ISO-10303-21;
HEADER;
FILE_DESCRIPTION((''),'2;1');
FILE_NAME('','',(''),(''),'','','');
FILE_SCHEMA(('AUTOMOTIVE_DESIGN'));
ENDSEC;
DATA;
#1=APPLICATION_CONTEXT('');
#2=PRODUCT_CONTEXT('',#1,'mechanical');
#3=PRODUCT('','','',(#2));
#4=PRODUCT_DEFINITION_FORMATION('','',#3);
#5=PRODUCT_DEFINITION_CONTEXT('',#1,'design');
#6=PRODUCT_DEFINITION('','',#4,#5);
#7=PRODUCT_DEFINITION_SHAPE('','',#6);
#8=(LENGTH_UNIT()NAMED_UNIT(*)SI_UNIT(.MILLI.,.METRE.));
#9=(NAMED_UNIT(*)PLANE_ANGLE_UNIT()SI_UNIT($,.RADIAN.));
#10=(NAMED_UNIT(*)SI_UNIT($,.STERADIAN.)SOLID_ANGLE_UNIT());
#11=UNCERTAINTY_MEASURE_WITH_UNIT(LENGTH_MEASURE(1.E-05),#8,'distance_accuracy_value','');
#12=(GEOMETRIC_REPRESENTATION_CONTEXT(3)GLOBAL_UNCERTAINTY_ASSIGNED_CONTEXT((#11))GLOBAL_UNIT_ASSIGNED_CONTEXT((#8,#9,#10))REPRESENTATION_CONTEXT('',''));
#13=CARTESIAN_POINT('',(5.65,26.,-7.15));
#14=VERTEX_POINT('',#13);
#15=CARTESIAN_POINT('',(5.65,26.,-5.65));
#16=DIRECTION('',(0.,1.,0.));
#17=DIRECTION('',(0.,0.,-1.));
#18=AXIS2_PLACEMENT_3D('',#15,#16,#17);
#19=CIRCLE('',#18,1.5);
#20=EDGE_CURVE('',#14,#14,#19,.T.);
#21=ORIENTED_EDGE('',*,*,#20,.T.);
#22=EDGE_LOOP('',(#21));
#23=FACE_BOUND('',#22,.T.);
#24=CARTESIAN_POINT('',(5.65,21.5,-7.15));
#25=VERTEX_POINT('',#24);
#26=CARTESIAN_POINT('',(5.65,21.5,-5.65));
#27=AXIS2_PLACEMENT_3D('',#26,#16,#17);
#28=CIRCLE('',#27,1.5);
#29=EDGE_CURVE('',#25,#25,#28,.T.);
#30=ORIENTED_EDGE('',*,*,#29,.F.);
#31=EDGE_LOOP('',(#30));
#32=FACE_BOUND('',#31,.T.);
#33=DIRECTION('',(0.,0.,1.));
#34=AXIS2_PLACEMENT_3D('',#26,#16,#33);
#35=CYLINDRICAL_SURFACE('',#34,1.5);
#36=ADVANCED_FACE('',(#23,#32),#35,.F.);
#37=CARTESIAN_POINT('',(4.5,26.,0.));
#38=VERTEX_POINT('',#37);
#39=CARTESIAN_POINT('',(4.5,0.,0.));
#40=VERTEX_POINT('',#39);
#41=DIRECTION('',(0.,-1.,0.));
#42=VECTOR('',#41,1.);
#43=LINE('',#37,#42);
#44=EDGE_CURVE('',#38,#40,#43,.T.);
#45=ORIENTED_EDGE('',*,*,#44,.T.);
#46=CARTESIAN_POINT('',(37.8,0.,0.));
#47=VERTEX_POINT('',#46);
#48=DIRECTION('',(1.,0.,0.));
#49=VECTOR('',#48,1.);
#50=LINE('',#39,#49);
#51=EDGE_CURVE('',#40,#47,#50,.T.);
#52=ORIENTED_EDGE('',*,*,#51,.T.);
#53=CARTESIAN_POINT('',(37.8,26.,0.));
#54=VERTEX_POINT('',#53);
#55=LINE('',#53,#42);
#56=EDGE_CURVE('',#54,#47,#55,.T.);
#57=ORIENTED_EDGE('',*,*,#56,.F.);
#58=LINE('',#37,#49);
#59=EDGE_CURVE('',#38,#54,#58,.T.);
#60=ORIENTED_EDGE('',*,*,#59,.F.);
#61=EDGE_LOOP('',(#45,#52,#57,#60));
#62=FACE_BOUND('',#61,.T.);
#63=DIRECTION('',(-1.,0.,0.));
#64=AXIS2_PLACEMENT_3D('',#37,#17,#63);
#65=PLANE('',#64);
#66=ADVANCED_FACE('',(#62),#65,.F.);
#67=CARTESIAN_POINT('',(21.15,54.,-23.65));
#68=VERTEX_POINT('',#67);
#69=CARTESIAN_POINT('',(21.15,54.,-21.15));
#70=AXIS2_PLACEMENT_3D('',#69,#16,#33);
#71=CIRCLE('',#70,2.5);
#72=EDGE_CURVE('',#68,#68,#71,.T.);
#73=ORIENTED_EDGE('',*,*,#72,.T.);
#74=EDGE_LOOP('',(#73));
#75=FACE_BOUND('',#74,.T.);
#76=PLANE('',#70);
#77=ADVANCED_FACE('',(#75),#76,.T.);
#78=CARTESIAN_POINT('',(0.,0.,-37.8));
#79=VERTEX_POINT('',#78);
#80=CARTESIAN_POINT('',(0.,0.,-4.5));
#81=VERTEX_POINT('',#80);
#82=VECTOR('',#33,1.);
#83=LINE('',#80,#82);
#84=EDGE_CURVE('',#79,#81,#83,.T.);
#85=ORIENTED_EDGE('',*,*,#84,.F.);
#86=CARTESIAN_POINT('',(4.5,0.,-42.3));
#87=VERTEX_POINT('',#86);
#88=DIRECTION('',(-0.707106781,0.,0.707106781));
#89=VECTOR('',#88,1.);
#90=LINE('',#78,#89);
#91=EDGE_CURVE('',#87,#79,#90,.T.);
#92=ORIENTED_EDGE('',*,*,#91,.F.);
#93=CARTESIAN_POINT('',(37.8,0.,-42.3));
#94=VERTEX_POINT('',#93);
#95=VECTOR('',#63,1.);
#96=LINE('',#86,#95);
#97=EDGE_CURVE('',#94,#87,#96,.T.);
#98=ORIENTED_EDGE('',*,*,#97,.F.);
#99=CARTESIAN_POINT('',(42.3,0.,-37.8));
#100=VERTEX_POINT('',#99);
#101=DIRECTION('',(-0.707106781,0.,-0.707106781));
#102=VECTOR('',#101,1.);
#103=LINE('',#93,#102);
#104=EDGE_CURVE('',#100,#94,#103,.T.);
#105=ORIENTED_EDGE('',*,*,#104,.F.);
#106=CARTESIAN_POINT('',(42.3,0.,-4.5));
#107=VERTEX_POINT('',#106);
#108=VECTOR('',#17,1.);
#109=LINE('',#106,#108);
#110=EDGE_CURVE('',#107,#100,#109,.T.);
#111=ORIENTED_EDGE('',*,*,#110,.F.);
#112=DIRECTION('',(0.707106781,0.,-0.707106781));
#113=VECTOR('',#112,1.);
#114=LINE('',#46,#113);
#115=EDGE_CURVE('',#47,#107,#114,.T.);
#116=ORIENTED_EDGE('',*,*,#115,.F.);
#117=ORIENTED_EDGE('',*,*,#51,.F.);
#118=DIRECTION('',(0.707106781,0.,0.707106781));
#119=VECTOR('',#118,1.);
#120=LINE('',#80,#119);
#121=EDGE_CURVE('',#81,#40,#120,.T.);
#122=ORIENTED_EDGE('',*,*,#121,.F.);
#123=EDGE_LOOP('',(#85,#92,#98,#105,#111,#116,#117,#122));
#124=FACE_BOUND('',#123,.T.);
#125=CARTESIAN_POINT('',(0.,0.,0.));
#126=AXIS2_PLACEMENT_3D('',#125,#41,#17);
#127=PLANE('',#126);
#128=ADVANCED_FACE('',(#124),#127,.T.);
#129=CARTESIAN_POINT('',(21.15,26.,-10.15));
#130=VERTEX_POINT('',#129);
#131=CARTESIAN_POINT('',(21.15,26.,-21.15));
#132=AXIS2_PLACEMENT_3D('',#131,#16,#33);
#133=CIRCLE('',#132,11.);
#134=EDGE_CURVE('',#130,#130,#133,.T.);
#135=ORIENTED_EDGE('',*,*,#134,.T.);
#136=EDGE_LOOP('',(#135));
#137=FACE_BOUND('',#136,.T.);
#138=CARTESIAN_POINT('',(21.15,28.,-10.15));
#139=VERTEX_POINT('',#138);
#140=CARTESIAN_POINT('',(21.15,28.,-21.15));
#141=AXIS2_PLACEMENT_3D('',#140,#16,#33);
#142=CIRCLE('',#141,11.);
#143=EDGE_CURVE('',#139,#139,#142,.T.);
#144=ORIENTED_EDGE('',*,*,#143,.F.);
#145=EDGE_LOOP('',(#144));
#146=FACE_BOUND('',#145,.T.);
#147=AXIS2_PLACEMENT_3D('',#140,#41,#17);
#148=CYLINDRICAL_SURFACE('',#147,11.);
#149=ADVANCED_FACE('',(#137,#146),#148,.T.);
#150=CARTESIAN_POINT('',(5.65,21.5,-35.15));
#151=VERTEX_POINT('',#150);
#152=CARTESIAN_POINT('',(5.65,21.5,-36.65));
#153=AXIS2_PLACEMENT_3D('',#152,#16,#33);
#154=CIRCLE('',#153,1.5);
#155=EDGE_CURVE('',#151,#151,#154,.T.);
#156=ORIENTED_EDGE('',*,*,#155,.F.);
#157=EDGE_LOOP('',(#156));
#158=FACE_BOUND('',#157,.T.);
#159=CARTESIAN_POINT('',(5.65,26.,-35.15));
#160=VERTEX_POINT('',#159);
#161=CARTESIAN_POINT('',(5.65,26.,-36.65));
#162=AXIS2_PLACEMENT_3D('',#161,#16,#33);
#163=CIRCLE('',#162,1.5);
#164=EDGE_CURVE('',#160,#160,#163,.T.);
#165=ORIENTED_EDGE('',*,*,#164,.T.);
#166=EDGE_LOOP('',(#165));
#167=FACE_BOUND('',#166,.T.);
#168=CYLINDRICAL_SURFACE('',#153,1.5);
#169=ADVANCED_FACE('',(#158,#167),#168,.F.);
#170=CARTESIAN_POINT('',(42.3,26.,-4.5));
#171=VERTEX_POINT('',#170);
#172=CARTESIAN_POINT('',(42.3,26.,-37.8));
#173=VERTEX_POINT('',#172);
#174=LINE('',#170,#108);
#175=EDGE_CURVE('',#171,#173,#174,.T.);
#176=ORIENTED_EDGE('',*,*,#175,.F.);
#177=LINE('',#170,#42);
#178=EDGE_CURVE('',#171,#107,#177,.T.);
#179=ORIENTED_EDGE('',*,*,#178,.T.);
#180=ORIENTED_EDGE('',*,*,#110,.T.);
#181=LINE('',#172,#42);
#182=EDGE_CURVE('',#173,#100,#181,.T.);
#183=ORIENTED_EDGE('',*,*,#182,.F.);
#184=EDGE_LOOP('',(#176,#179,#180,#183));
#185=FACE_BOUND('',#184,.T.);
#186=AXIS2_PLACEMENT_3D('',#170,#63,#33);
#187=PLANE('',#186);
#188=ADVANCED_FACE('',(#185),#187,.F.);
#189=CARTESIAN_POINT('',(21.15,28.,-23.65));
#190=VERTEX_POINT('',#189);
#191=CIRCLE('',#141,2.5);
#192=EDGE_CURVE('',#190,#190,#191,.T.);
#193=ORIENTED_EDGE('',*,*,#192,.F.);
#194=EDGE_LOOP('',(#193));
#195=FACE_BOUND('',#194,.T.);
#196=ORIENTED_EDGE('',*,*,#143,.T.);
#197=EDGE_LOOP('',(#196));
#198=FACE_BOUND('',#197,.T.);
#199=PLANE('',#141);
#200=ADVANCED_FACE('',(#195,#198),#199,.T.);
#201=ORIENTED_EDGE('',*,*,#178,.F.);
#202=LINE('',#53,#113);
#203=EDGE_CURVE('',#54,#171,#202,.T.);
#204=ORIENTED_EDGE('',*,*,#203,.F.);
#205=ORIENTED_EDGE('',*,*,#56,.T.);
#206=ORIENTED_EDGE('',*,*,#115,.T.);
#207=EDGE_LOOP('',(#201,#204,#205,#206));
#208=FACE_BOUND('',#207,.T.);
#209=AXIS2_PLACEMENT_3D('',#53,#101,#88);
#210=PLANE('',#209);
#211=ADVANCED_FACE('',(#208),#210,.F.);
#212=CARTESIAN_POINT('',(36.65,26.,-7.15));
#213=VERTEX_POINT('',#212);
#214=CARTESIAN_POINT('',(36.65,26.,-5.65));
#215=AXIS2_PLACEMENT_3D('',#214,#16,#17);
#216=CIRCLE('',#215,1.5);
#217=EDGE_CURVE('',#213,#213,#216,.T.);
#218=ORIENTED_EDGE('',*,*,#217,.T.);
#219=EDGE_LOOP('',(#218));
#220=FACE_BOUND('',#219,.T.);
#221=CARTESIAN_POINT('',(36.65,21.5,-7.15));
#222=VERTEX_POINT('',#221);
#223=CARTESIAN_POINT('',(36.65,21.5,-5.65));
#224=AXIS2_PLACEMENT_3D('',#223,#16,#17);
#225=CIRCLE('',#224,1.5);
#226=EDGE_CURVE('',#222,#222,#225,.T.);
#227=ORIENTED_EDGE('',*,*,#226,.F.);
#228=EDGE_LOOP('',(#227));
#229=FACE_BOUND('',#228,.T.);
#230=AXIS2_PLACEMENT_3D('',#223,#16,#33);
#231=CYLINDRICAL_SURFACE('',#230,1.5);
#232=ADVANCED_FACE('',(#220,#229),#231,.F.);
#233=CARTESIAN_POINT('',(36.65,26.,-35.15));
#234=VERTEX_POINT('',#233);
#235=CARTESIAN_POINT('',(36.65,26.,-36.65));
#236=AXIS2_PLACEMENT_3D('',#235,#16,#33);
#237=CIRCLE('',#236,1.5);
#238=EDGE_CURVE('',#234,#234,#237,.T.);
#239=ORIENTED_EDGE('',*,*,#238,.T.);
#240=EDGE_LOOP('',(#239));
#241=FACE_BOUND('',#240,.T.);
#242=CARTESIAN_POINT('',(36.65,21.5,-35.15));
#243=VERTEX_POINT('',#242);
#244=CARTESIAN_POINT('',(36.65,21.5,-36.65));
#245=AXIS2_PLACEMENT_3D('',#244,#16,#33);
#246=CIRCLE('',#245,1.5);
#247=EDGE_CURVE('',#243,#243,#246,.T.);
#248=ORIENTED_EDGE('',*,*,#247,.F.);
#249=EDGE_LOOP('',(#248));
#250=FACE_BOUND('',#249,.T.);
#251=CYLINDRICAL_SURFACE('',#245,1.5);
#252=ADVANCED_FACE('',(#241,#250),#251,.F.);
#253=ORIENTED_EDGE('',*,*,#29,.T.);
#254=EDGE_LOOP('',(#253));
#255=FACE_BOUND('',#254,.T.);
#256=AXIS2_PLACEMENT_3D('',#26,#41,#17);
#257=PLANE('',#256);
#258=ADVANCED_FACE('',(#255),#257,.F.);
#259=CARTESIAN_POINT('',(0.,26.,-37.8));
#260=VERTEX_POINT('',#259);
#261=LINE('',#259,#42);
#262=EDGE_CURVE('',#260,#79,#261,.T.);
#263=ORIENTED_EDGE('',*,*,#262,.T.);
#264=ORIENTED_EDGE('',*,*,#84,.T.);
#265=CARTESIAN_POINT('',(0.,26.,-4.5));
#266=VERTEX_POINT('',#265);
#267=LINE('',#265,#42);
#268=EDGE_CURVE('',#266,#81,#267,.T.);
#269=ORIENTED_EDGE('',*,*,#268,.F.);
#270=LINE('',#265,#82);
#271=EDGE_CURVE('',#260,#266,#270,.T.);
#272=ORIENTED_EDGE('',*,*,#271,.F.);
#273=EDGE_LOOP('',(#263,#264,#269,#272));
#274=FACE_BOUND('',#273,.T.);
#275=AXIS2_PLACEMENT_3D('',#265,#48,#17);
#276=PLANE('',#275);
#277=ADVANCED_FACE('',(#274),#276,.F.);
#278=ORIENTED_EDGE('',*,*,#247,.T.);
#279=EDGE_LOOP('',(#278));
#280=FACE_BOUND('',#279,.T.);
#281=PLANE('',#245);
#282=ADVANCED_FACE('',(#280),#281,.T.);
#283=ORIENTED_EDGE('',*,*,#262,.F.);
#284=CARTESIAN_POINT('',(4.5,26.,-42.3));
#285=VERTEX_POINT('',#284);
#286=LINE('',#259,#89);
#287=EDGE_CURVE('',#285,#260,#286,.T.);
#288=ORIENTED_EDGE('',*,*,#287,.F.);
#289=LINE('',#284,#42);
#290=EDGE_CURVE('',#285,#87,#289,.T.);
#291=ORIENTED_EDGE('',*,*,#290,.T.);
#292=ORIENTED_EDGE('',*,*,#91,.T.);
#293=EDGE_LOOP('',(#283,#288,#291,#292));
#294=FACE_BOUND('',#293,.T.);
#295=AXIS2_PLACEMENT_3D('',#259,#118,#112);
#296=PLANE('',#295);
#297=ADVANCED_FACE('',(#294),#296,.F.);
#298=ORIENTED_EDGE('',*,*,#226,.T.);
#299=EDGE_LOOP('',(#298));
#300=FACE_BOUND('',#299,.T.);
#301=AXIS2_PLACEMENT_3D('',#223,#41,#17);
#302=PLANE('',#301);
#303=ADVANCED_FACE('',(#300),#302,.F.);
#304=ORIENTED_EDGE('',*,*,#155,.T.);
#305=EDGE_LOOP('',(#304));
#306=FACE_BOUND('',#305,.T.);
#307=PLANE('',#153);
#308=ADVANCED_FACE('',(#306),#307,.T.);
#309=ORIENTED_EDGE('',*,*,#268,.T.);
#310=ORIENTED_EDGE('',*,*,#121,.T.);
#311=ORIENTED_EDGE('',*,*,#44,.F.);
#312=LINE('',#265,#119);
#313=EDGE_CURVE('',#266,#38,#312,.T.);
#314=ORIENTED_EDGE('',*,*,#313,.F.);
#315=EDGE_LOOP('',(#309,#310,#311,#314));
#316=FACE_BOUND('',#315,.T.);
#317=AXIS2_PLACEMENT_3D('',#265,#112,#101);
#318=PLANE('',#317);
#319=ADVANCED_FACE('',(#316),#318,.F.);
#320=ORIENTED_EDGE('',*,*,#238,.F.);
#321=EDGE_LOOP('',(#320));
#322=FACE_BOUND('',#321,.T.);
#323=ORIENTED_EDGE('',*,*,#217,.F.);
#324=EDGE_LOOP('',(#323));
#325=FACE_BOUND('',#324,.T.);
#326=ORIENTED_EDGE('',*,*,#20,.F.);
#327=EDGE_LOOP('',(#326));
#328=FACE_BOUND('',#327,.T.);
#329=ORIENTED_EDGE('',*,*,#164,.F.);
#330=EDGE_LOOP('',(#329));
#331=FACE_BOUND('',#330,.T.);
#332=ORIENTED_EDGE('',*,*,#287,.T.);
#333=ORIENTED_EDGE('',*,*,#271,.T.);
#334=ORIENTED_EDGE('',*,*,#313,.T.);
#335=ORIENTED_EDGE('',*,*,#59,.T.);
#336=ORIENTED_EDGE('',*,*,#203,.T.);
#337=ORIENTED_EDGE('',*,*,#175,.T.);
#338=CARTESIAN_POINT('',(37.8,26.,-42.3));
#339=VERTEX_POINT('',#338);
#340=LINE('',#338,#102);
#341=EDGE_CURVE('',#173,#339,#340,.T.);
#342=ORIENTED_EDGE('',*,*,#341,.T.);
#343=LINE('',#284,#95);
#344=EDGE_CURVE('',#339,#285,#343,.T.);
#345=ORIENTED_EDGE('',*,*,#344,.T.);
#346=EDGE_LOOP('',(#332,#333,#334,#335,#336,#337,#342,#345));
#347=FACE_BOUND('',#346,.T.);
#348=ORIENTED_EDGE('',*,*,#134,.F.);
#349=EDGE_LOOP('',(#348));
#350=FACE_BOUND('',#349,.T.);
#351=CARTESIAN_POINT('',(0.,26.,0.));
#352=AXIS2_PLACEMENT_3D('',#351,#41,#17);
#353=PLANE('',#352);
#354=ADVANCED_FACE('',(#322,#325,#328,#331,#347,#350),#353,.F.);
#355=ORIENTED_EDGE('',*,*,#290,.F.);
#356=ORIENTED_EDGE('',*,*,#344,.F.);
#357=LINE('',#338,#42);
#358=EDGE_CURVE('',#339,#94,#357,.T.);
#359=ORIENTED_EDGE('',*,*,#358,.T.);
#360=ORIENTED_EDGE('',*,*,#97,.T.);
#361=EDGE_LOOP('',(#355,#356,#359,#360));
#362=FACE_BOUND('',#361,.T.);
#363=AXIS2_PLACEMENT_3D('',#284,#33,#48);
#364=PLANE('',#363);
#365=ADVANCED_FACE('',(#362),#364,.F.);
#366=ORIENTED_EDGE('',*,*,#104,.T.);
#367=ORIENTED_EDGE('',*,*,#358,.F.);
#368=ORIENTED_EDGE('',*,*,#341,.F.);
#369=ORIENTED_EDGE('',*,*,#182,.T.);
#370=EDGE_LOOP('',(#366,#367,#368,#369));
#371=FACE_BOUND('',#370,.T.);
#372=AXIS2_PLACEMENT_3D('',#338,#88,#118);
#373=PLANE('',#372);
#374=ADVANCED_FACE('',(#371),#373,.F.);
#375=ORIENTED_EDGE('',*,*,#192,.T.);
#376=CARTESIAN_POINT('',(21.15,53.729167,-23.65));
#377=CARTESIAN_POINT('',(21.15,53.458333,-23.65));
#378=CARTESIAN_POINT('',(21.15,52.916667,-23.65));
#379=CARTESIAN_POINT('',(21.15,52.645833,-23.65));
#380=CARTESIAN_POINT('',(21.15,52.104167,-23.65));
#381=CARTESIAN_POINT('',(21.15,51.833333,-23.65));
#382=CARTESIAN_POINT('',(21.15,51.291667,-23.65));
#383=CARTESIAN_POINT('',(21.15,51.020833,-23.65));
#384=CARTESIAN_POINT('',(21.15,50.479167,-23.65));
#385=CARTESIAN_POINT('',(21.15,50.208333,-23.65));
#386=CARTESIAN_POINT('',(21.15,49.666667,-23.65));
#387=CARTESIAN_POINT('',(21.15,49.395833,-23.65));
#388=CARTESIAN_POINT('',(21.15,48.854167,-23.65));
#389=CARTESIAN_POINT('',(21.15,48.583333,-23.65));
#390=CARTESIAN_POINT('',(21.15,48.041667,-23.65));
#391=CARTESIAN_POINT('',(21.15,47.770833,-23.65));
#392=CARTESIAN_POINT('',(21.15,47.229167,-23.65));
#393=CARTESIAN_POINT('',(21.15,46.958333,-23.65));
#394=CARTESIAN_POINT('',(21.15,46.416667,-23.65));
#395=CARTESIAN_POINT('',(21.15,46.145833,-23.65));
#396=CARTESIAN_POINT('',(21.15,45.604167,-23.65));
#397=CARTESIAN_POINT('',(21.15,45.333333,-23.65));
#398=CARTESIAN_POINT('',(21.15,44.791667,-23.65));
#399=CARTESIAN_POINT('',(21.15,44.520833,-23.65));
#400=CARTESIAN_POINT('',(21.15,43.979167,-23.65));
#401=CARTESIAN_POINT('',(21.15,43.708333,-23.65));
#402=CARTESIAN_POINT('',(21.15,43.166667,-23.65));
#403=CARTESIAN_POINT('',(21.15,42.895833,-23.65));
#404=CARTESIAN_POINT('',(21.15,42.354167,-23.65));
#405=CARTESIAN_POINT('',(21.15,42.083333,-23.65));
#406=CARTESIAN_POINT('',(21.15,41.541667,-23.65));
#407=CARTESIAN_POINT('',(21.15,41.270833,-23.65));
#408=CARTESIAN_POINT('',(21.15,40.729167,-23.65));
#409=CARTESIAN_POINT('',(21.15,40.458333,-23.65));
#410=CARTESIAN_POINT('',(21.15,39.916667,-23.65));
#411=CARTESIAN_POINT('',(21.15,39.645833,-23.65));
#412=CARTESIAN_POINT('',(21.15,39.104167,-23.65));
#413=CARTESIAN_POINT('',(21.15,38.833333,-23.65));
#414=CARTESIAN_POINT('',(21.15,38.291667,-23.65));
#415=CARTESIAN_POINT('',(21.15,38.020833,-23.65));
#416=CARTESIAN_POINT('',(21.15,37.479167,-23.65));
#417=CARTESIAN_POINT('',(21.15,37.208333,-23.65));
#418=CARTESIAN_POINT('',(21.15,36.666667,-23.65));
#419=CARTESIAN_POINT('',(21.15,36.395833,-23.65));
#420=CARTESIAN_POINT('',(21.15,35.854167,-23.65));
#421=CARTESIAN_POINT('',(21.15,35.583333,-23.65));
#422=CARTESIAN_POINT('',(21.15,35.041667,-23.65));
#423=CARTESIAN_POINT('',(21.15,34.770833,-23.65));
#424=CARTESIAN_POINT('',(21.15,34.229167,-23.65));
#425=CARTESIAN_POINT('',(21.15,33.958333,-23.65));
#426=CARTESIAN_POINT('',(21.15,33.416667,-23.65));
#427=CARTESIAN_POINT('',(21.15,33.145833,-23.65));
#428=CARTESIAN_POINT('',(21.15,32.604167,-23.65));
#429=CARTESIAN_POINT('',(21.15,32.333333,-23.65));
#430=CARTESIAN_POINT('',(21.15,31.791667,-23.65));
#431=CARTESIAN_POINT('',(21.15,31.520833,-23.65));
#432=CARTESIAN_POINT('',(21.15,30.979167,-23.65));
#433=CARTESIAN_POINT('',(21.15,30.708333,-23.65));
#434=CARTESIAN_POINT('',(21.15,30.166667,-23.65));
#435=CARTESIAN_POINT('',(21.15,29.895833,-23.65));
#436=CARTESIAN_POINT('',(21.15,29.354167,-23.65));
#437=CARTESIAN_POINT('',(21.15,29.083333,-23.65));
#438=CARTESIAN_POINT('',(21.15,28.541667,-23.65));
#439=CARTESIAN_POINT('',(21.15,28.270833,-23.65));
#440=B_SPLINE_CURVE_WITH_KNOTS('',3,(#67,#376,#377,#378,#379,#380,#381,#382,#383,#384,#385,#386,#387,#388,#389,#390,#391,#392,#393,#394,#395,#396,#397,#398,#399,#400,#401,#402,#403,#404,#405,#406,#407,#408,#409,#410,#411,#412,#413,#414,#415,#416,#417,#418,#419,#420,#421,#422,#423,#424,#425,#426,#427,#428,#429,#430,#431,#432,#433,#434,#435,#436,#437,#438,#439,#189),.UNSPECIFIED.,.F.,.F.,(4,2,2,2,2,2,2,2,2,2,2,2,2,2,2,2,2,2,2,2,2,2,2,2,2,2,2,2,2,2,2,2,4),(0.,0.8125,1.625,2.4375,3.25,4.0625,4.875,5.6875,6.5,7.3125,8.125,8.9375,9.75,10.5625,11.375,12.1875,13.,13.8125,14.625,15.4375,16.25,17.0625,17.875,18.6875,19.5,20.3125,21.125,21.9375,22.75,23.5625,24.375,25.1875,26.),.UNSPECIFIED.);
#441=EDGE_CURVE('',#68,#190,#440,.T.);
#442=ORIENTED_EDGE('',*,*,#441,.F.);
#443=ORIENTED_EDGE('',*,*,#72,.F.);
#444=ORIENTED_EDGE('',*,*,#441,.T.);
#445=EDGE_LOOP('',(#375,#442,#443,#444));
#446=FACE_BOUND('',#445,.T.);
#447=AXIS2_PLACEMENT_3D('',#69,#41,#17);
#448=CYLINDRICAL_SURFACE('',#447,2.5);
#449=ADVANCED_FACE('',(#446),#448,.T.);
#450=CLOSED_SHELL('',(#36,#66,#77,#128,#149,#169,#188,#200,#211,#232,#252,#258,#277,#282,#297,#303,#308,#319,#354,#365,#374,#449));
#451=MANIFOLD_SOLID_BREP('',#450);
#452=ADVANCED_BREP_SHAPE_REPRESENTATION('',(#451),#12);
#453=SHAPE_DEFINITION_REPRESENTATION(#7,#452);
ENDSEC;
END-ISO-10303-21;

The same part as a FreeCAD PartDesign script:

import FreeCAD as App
import Part
import Sketcher
Q = App.Units.Quantity


def add_polygon(sketch, points):
    """Adds a closed chain of lines whose ends are joined by coincident constraints."""
    first, n = sketch.GeometryCount, len(points)
    for a, b in zip(points, points[1:] + points[:1]):
        sketch.addGeometry(Part.LineSegment(App.Vector(*a, 0), App.Vector(*b, 0)), False)
    for i in range(n):
        sketch.addConstraint(Sketcher.Constraint("Coincident", first + i, 2, first + (i + 1) % n, 1))

doc = App.newDocument("Part")
body = doc.addObject("PartDesign::Body", "Body")

sketch1 = body.newObject("Sketcher::SketchObject", "Sketch")
sketch1.AttachmentSupport = (doc.getObject("XZ_Plane"), [""])
sketch1.MapMode = "FlatFace"
add_polygon(sketch1, [(4, -42), (0, -38), (0, -4), (4, 0), (38, 0), (42, -4), (42, -38), (38, -42)])
sketch1.addConstraint([
    Sketcher.Constraint("Vertical", 1),
    Sketcher.Constraint("Horizontal", 3),
    Sketcher.Constraint("Vertical", 5),
    Sketcher.Constraint("Horizontal", 7),
    Sketcher.Constraint("PointOnObject", 0, 2, -2),
    Sketcher.Constraint("PointOnObject", 2, 2, -1),
    Sketcher.Constraint("Perpendicular", 0, 2),
    Sketcher.Constraint("Perpendicular", 2, 4),
    Sketcher.Constraint("Perpendicular", 4, 6),
    Sketcher.Constraint("Horizontal", 1, 2, 4, 2),
    Sketcher.Constraint("Horizontal", 0, 2, 5, 2),
    Sketcher.Constraint("Vertical", 3, 2, 6, 2),
    Sketcher.Constraint("Vertical", 2, 2, 7, 2),
    Sketcher.Constraint("Equal", 7, 1),
    Sketcher.Constraint("DistanceX", 3, 1, 3, 2, Q("33.3 mm")),
    Sketcher.Constraint("DistanceY", 0, 2, -1, 1, Q("37.8 mm")),
])
pad1 = body.newObject("PartDesign::Pad", "Pad")
pad1.Profile = sketch1
pad1.Length = 26
pad1.Reversed = True

sketch2 = body.newObject("Sketcher::SketchObject", "Sketch001")
sketch2.AttachmentSupport = (doc.getObject("XZ_Plane"), [""])
sketch2.MapMode = "FlatFace"
sketch2.AttachmentOffset = App.Placement(App.Vector(0, 0, -26), App.Rotation())
sketch2.addGeometry(Part.Circle(App.Vector(21, -21, 0), App.Vector(0, 0, 1), 11), False)
sketch2.addConstraint([
    Sketcher.Constraint("Diameter", 0, Q("22 mm")),
    Sketcher.Constraint("DistanceX", -1, 1, 0, 3, Q("21.15 mm")),
    Sketcher.Constraint("DistanceY", 0, 3, -1, 1, Q("21.15 mm")),
])
pad2 = body.newObject("PartDesign::Pad", "Pad001")
pad2.Profile = sketch2
pad2.Length = 2
pad2.Reversed = True

sketch3 = body.newObject("Sketcher::SketchObject", "Sketch002")
sketch3.AttachmentSupport = (doc.getObject("XZ_Plane"), [""])
sketch3.MapMode = "FlatFace"
sketch3.AttachmentOffset = App.Placement(App.Vector(0, 0, -28), App.Rotation())
sketch3.addGeometry(Part.Circle(App.Vector(21.1, -21.1, 0), App.Vector(0, 0, 1), 2.5), False)
sketch3.addConstraint([
    Sketcher.Constraint("Diameter", 0, Q("5 mm")),
    Sketcher.Constraint("DistanceX", -1, 1, 0, 3, Q("21.15 mm")),
    Sketcher.Constraint("DistanceY", 0, 3, -1, 1, Q("21.15 mm")),
])
pad3 = body.newObject("PartDesign::Pad", "Pad002")
pad3.Profile = sketch3
pad3.Length = 26
pad3.Reversed = True

sketch4 = body.newObject("Sketcher::SketchObject", "Sketch003")
sketch4.AttachmentSupport = (doc.getObject("XZ_Plane"), [""])
sketch4.MapMode = "FlatFace"
sketch4.AttachmentOffset = App.Placement(App.Vector(0, 0, -26), App.Rotation())
sketch4.addGeometry([
    Part.Circle(App.Vector(5.7, -36.6, 0), App.Vector(0, 0, 1), 1.5),
    Part.Circle(App.Vector(36.6, -36.6, 0), App.Vector(0, 0, 1), 1.5),
    Part.Circle(App.Vector(5.7, -5.7, 0), App.Vector(0, 0, 1), 1.5),
    Part.Circle(App.Vector(36.6, -5.7, 0), App.Vector(0, 0, 1), 1.5),
], False)
sketch4.addConstraint([
    Sketcher.Constraint("Equal", 0, 1),
    Sketcher.Constraint("Equal", 1, 2),
    Sketcher.Constraint("Equal", 2, 3),
    Sketcher.Constraint("Horizontal", 0, 3, 1, 3),
    Sketcher.Constraint("Horizontal", 2, 3, 3, 3),
    Sketcher.Constraint("Vertical", 0, 3, 2, 3),
    Sketcher.Constraint("Vertical", 1, 3, 3, 3),
    Sketcher.Constraint("Diameter", 0, Q("3 mm")),
    Sketcher.Constraint("DistanceX", 0, 3, 1, 3, Q("31 mm")),
    Sketcher.Constraint("DistanceY", 0, 3, 2, 3, Q("31 mm")),
    Sketcher.Constraint("DistanceX", -1, 1, 0, 3, Q("5.65 mm")),
    Sketcher.Constraint("DistanceY", 0, 3, -1, 1, Q("36.65 mm")),
])
pocket1 = body.newObject("PartDesign::Pocket", "Pocket")
pocket1.Profile = sketch4
pocket1.Length = 4.5
pocket1.Reversed = True

doc.recompute()
